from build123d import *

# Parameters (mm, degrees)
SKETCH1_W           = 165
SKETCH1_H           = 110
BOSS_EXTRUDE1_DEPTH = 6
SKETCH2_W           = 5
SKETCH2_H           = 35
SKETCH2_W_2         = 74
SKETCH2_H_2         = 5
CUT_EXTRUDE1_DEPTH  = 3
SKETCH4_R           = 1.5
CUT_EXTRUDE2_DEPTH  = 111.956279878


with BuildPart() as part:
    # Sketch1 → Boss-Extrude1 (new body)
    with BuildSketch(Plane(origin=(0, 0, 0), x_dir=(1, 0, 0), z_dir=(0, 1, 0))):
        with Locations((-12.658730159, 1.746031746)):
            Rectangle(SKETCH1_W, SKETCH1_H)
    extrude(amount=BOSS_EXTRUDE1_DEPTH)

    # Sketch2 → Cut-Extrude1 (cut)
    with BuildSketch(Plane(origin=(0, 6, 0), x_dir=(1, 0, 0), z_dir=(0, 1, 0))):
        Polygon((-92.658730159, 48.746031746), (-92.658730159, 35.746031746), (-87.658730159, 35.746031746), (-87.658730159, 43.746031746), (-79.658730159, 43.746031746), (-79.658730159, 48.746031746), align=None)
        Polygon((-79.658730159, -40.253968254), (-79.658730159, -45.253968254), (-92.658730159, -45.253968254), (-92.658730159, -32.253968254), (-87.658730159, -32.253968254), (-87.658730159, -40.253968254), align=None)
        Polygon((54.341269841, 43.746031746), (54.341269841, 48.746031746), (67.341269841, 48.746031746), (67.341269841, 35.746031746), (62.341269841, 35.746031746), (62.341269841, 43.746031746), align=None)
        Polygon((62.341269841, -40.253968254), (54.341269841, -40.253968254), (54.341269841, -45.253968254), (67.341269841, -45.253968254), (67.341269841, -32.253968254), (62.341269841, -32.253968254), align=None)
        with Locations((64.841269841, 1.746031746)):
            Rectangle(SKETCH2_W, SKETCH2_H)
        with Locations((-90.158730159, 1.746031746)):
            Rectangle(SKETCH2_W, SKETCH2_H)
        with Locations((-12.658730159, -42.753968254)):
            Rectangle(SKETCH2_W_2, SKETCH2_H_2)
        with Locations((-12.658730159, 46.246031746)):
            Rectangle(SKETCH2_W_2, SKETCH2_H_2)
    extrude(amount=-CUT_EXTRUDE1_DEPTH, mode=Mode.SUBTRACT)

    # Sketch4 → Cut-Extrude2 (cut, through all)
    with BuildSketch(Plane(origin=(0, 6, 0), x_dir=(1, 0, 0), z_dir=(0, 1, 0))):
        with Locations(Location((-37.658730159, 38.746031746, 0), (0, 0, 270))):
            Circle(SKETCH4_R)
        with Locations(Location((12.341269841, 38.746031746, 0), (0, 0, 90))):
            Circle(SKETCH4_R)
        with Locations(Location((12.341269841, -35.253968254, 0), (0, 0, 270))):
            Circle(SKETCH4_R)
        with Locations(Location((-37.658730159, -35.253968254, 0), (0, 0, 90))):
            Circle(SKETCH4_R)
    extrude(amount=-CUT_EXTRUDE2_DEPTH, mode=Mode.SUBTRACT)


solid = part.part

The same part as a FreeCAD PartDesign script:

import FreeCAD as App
import Part
import Sketcher
from FreeCAD import Vector
Q = App.Units.Quantity

doc = App.newDocument("Part")
body = doc.addObject("PartDesign::Body", "Body")

# Sketch on XZ plane
sketch1 = doc.addObject("Sketcher::SketchObject", "Sketch")
body.addObject(sketch1)
sketch1.AttachmentSupport = (doc.XZ_Plane, [""])
sketch1.MapMode = "FlatFace"
sketch1.addGeometry(Part.LineSegment(Vector(-95, -57, 0), Vector(-95, 53, 0)), False)
sketch1.addGeometry(Part.LineSegment(Vector(-95, 53, 0), Vector(70, 53, 0)), False)
sketch1.addGeometry(Part.LineSegment(Vector(70, 53, 0), Vector(70, -57, 0)), False)
sketch1.addGeometry(Part.LineSegment(Vector(70, -57, 0), Vector(-95, -57, 0)), False)
sketch1.addConstraint(Sketcher.Constraint("Coincident", 0, 2, 1, 1))
sketch1.addConstraint(Sketcher.Constraint("Coincident", 1, 2, 2, 1))
sketch1.addConstraint(Sketcher.Constraint("Coincident", 2, 2, 3, 1))
sketch1.addConstraint(Sketcher.Constraint("Coincident", 3, 2, 0, 1))
sketch1.addConstraint(Sketcher.Constraint("Vertical", 0))
sketch1.addConstraint(Sketcher.Constraint("Horizontal", 1))
sketch1.addConstraint(Sketcher.Constraint("Vertical", 2))
sketch1.addConstraint(Sketcher.Constraint("Horizontal", 3))
sketch1.addConstraint(Sketcher.Constraint("DistanceX", 1, 1, 1, 2, Q("165 mm")))
sketch1.addConstraint(Sketcher.Constraint("DistanceY", 0, 1, 0, 2, Q("110 mm")))
sketch1.addConstraint(Sketcher.Constraint("DistanceX", 0, 2, -1, 1, Q("95.15873 mm")))
sketch1.addConstraint(Sketcher.Constraint("DistanceY", -1, 1, 0, 2, Q("53.253968 mm")))
pad1 = doc.addObject("PartDesign::Pad", "Pad")
body.addObject(pad1)
pad1.Profile = sketch1
pad1.Length = 6
pad1.Reversed = True

# Sketch on XZ plane
sketch2 = doc.addObject("Sketcher::SketchObject", "Sketch001")
body.addObject(sketch2)
sketch2.AttachmentSupport = (doc.XZ_Plane, [""])
sketch2.MapMode = "FlatFace"
sketch2.AttachmentOffset = App.Placement(Vector(0, 0, -6), App.Rotation())
sketch2.addGeometry(Part.LineSegment(Vector(-93, -49, 0), Vector(-93, -36, 0)), False)
sketch2.addGeometry(Part.LineSegment(Vector(-93, -36, 0), Vector(-88, -36, 0)), False)
sketch2.addGeometry(Part.LineSegment(Vector(-88, -36, 0), Vector(-88, -44, 0)), False)
sketch2.addGeometry(Part.LineSegment(Vector(-88, -44, 0), Vector(-80, -44, 0)), False)
sketch2.addGeometry(Part.LineSegment(Vector(-80, -44, 0), Vector(-80, -49, 0)), False)
sketch2.addGeometry(Part.LineSegment(Vector(-80, -49, 0), Vector(-93, -49, 0)), False)
sketch2.addGeometry(Part.LineSegment(Vector(-80, 45, 0), Vector(-80, 40, 0)), False)
sketch2.addGeometry(Part.LineSegment(Vector(-80, 40, 0), Vector(-88, 40, 0)), False)
sketch2.addGeometry(Part.LineSegment(Vector(-88, 40, 0), Vector(-88, 32, 0)), False)
sketch2.addGeometry(Part.LineSegment(Vector(-88, 32, 0), Vector(-93, 32, 0)), False)
sketch2.addGeometry(Part.LineSegment(Vector(-93, 32, 0), Vector(-93, 45, 0)), False)
sketch2.addGeometry(Part.LineSegment(Vector(-93, 45, 0), Vector(-80, 45, 0)), False)
sketch2.addGeometry(Part.LineSegment(Vector(54, -49, 0), Vector(54, -44, 0)), False)
sketch2.addGeometry(Part.LineSegment(Vector(54, -44, 0), Vector(62, -44, 0)), False)
sketch2.addGeometry(Part.LineSegment(Vector(62, -44, 0), Vector(62, -36, 0)), False)
sketch2.addGeometry(Part.LineSegment(Vector(62, -36, 0), Vector(67, -36, 0)), False)
sketch2.addGeometry(Part.LineSegment(Vector(67, -36, 0), Vector(67, -49, 0)), False)
sketch2.addGeometry(Part.LineSegment(Vector(67, -49, 0), Vector(54, -49, 0)), False)
sketch2.addGeometry(Part.LineSegment(Vector(62, 40, 0), Vector(54, 40, 0)), False)
sketch2.addGeometry(Part.LineSegment(Vector(54, 40, 0), Vector(54, 45, 0)), False)
sketch2.addGeometry(Part.LineSegment(Vector(54, 45, 0), Vector(67, 45, 0)), False)
sketch2.addGeometry(Part.LineSegment(Vector(67, 45, 0), Vector(67, 32, 0)), False)
sketch2.addGeometry(Part.LineSegment(Vector(67, 32, 0), Vector(62, 32, 0)), False)
sketch2.addGeometry(Part.LineSegment(Vector(62, 32, 0), Vector(62, 40, 0)), False)
sketch2.addGeometry(Part.LineSegment(Vector(62, -19, 0), Vector(62, 16, 0)), False)
sketch2.addGeometry(Part.LineSegment(Vector(62, 16, 0), Vector(67, 16, 0)), False)
sketch2.addGeometry(Part.LineSegment(Vector(67, 16, 0), Vector(67, -19, 0)), False)
sketch2.addGeometry(Part.LineSegment(Vector(67, -19, 0), Vector(62, -19, 0)), False)
sketch2.addGeometry(Part.LineSegment(Vector(-93, -19, 0), Vector(-93, 16, 0)), False)
sketch2.addGeometry(Part.LineSegment(Vector(-93, 16, 0), Vector(-88, 16, 0)), False)
sketch2.addGeometry(Part.LineSegment(Vector(-88, 16, 0), Vector(-88, -19, 0)), False)
sketch2.addGeometry(Part.LineSegment(Vector(-88, -19, 0), Vector(-93, -19, 0)), False)
sketch2.addGeometry(Part.LineSegment(Vector(-50, 40, 0), Vector(-50, 45, 0)), False)
sketch2.addGeometry(Part.LineSegment(Vector(-50, 45, 0), Vector(24, 45, 0)), False)
sketch2.addGeometry(Part.LineSegment(Vector(24, 45, 0), Vector(24, 40, 0)), False)
sketch2.addGeometry(Part.LineSegment(Vector(24, 40, 0), Vector(-50, 40, 0)), False)
sketch2.addGeometry(Part.LineSegment(Vector(-50, -49, 0), Vector(-50, -44, 0)), False)
sketch2.addGeometry(Part.LineSegment(Vector(-50, -44, 0), Vector(24, -44, 0)), False)
sketch2.addGeometry(Part.LineSegment(Vector(24, -44, 0), Vector(24, -49, 0)), False)
sketch2.addGeometry(Part.LineSegment(Vector(24, -49, 0), Vector(-50, -49, 0)), False)
sketch2.addConstraint(Sketcher.Constraint("Coincident", 0, 2, 1, 1))
sketch2.addConstraint(Sketcher.Constraint("Coincident", 1, 2, 2, 1))
sketch2.addConstraint(Sketcher.Constraint("Coincident", 2, 2, 3, 1))
sketch2.addConstraint(Sketcher.Constraint("Coincident", 3, 2, 4, 1))
sketch2.addConstraint(Sketcher.Constraint("Coincident", 4, 2, 5, 1))
sketch2.addConstraint(Sketcher.Constraint("Coincident", 5, 2, 0, 1))
sketch2.addConstraint(Sketcher.Constraint("Coincident", 6, 2, 7, 1))
sketch2.addConstraint(Sketcher.Constraint("Coincident", 7, 2, 8, 1))
sketch2.addConstraint(Sketcher.Constraint("Coincident", 8, 2, 9, 1))
sketch2.addConstraint(Sketcher.Constraint("Coincident", 9, 2, 10, 1))
sketch2.addConstraint(Sketcher.Constraint("Coincident", 10, 2, 11, 1))
sketch2.addConstraint(Sketcher.Constraint("Coincident", 11, 2, 6, 1))
sketch2.addConstraint(Sketcher.Constraint("Coincident", 12, 2, 13, 1))
sketch2.addConstraint(Sketcher.Constraint("Coincident", 13, 2, 14, 1))
sketch2.addConstraint(Sketcher.Constraint("Coincident", 14, 2, 15, 1))
sketch2.addConstraint(Sketcher.Constraint("Coincident", 15, 2, 16, 1))
sketch2.addConstraint(Sketcher.Constraint("Coincident", 16, 2, 17, 1))
sketch2.addConstraint(Sketcher.Constraint("Coincident", 17, 2, 12, 1))
sketch2.addConstraint(Sketcher.Constraint("Coincident", 18, 2, 19, 1))
sketch2.addConstraint(Sketcher.Constraint("Coincident", 19, 2, 20, 1))
sketch2.addConstraint(Sketcher.Constraint("Coincident", 20, 2, 21, 1))
sketch2.addConstraint(Sketcher.Constraint("Coincident", 21, 2, 22, 1))
sketch2.addConstraint(Sketcher.Constraint("Coincident", 22, 2, 23, 1))
sketch2.addConstraint(Sketcher.Constraint("Coincident", 23, 2, 18, 1))
sketch2.addConstraint(Sketcher.Constraint("Coincident", 24, 2, 25, 1))
sketch2.addConstraint(Sketcher.Constraint("Coincident", 25, 2, 26, 1))
sketch2.addConstraint(Sketcher.Constraint("Coincident", 26, 2, 27, 1))
sketch2.addConstraint(Sketcher.Constraint("Coincident", 27, 2, 24, 1))
sketch2.addConstraint(Sketcher.Constraint("Coincident", 28, 2, 29, 1))
sketch2.addConstraint(Sketcher.Constraint("Coincident", 29, 2, 30, 1))
sketch2.addConstraint(Sketcher.Constraint("Coincident", 30, 2, 31, 1))
sketch2.addConstraint(Sketcher.Constraint("Coincident", 31, 2, 28, 1))
sketch2.addConstraint(Sketcher.Constraint("Coincident", 32, 2, 33, 1))
sketch2.addConstraint(Sketcher.Constraint("Coincident", 33, 2, 34, 1))
sketch2.addConstraint(Sketcher.Constraint("Coincident", 34, 2, 35, 1))
sketch2.addConstraint(Sketcher.Constraint("Coincident", 35, 2, 32, 1))
sketch2.addConstraint(Sketcher.Constraint("Coincident", 36, 2, 37, 1))
sketch2.addConstraint(Sketcher.Constraint("Coincident", 37, 2, 38, 1))
sketch2.addConstraint(Sketcher.Constraint("Coincident", 38, 2, 39, 1))
sketch2.addConstraint(Sketcher.Constraint("Coincident", 39, 2, 36, 1))
sketch2.addConstraint(Sketcher.Constraint("Vertical", 0))
sketch2.addConstraint(Sketcher.Constraint("Horizontal", 1))
sketch2.addConstraint(Sketcher.Constraint("Vertical", 2))
sketch2.addConstraint(Sketcher.Constraint("Horizontal", 3))
sketch2.addConstraint(Sketcher.Constraint("Vertical", 4))
sketch2.addConstraint(Sketcher.Constraint("Horizontal", 5))
sketch2.addConstraint(Sketcher.Constraint("Vertical", 6))
sketch2.addConstraint(Sketcher.Constraint("Horizontal", 7))
sketch2.addConstraint(Sketcher.Constraint("Vertical", 8))
sketch2.addConstraint(Sketcher.Constraint("Horizontal", 9))
sketch2.addConstraint(Sketcher.Constraint("Vertical", 10))
sketch2.addConstraint(Sketcher.Constraint("Horizontal", 11))
sketch2.addConstraint(Sketcher.Constraint("Vertical", 12))
sketch2.addConstraint(Sketcher.Constraint("Horizontal", 13))
sketch2.addConstraint(Sketcher.Constraint("Vertical", 14))
sketch2.addConstraint(Sketcher.Constraint("Horizontal", 15))
sketch2.addConstraint(Sketcher.Constraint("Vertical", 16))
sketch2.addConstraint(Sketcher.Constraint("Horizontal", 17))
sketch2.addConstraint(Sketcher.Constraint("Horizontal", 18))
sketch2.addConstraint(Sketcher.Constraint("Vertical", 19))
sketch2.addConstraint(Sketcher.Constraint("Horizontal", 20))
sketch2.addConstraint(Sketcher.Constraint("Vertical", 21))
sketch2.addConstraint(Sketcher.Constraint("Horizontal", 22))
sketch2.addConstraint(Sketcher.Constraint("Vertical", 23))
sketch2.addConstraint(Sketcher.Constraint("Vertical", 24))
sketch2.addConstraint(Sketcher.Constraint("Horizontal", 25))
sketch2.addConstraint(Sketcher.Constraint("Vertical", 26))
sketch2.addConstraint(Sketcher.Constraint("Horizontal", 27))
sketch2.addConstraint(Sketcher.Constraint("Vertical", 28))
sketch2.addConstraint(Sketcher.Constraint("Horizontal", 29))
sketch2.addConstraint(Sketcher.Constraint("Vertical", 30))
sketch2.addConstraint(Sketcher.Constraint("Horizontal", 31))
sketch2.addConstraint(Sketcher.Constraint("Vertical", 32))
sketch2.addConstraint(Sketcher.Constraint("Horizontal", 33))
sketch2.addConstraint(Sketcher.Constraint("Vertical", 34))
sketch2.addConstraint(Sketcher.Constraint("Horizontal", 35))
sketch2.addConstraint(Sketcher.Constraint("Vertical", 36))
sketch2.addConstraint(Sketcher.Constraint("Horizontal", 37))
sketch2.addConstraint(Sketcher.Constraint("Vertical", 38))
sketch2.addConstraint(Sketcher.Constraint("Horizontal", 39))
sketch2.addConstraint(Sketcher.Constraint("Horizontal", 3, 2, 12, 2))
sketch2.addConstraint(Sketcher.Constraint("Horizontal", 1, 2, 14, 2))
sketch2.addConstraint(Sketcher.Constraint("Horizontal", 5, 2, 16, 2))
sketch2.addConstraint(Sketcher.Constraint("Horizontal", 7, 2, 18, 2))
sketch2.addConstraint(Sketcher.Constraint("Horizontal", 11, 2, 19, 2))
sketch2.addConstraint(Sketcher.Constraint("Horizontal", 9, 2, 21, 2))
sketch2.addConstraint(Sketcher.Constraint("Horizontal", 25, 2, 28, 2))
sketch2.addConstraint(Sketcher.Constraint("Horizontal", 27, 2, 30, 2))
sketch2.addConstraint(Sketcher.Constraint("Horizontal", 20, 2, 32, 2))
sketch2.addConstraint(Sketcher.Constraint("Horizontal", 23, 2, 34, 2))
sketch2.addConstraint(Sketcher.Constraint("Horizontal", 13, 2, 36, 2))
sketch2.addConstraint(Sketcher.Constraint("Horizontal", 17, 2, 38, 2))
sketch2.addConstraint(Sketcher.Constraint("Vertical", 4, 2, 6, 2))
sketch2.addConstraint(Sketcher.Constraint("Vertical", 2, 2, 7, 2))
sketch2.addConstraint(Sketcher.Constraint("Vertical", 5, 2, 9, 2))
sketch2.addConstraint(Sketcher.Constraint("Vertical", 17, 2, 18, 2))
sketch2.addConstraint(Sketcher.Constraint("Vertical", 16, 2, 20, 2))
sketch2.addConstraint(Sketcher.Constraint("Vertical", 14, 2, 22, 2))
sketch2.addConstraint(Sketcher.Constraint("Vertical", 23, 2, 24, 2))
sketch2.addConstraint(Sketcher.Constraint("Vertical", 21, 2, 25, 2))
sketch2.addConstraint(Sketcher.Constraint("Vertical", 10, 2, 28, 2))
sketch2.addConstraint(Sketcher.Constraint("Vertical", 8, 2, 29, 2))
sketch2.addConstraint(Sketcher.Constraint("Vertical", 35, 2, 36, 2))
sketch2.addConstraint(Sketcher.Constraint("Vertical", 34, 2, 37, 2))
sketch2.addConstraint(Sketcher.Constraint("Equal", 7, 13))
sketch2.addConstraint(Sketcher.Constraint("Equal", 9, 15))
sketch2.addConstraint(Sketcher.Constraint("Equal", 20, 0))
sketch2.addConstraint(Sketcher.Constraint("Equal", 18, 2))
sketch2.addConstraint(Sketcher.Constraint("Equal", 4, 6))
sketch2.addConstraint(Sketcher.Constraint("Equal", 2, 8))
sketch2.addConstraint(Sketcher.Constraint("DistanceX", 1, 1, 1, 2, Q("5 mm")))
sketch2.addConstraint(Sketcher.Constraint("DistanceX", 3, 1, 3, 2, Q("8 mm")))
sketch2.addConstraint(Sketcher.Constraint("DistanceX", 33, 1, 33, 2, Q("74 mm")))
sketch2.addConstraint(Sketcher.Constraint("DistanceY", 24, 1, 24, 2, Q("35 mm")))
sketch2.addConstraint(Sketcher.Constraint("DistanceY", 1, 2, 6, 2, Q("76 mm")))
sketch2.addConstraint(Sketcher.Constraint("DistanceX", 3, 2, 12, 2, Q("134 mm")))
sketch2.addConstraint(Sketcher.Constraint("DistanceX", 11, 2, 32, 2, Q("30 mm")))
sketch2.addConstraint(Sketcher.Constraint("DistanceY", 24, 2, 22, 2, Q("16.5 mm")))
sketch2.addConstraint(Sketcher.Constraint("DistanceX", 0, 2, -1, 1, Q("92.65873 mm")))
sketch2.addConstraint(Sketcher.Constraint("DistanceY", 0, 2, -1, 1, Q("35.746032 mm")))
pocket1 = doc.addObject("PartDesign::Pocket", "Pocket")
body.addObject(pocket1)
pocket1.Profile = sketch2
pocket1.Length = 3
pocket1.Reversed = True

# Sketch on XZ plane
sketch3 = doc.addObject("Sketcher::SketchObject", "Sketch002")
body.addObject(sketch3)
sketch3.AttachmentSupport = (doc.XZ_Plane, [""])
sketch3.MapMode = "FlatFace"
sketch3.AttachmentOffset = App.Placement(Vector(0, 0, -6), App.Rotation())
sketch3.addGeometry(Part.Circle(Vector(-37.7, -38.7, 0), Vector(0, 0, 1), 1.5), False)
sketch3.addGeometry(Part.Circle(Vector(12.3, -38.7, 0), Vector(0, 0, 1), 1.5), False)
sketch3.addGeometry(Part.Circle(Vector(12.3, 35.3, 0), Vector(0, 0, 1), 1.5), False)
sketch3.addGeometry(Part.Circle(Vector(-37.7, 35.3, 0), Vector(0, 0, 1), 1.5), False)
sketch3.addConstraint(Sketcher.Constraint("Equal", 0, 1))
sketch3.addConstraint(Sketcher.Constraint("Equal", 1, 2))
sketch3.addConstraint(Sketcher.Constraint("Equal", 2, 3))
sketch3.addConstraint(Sketcher.Constraint("Horizontal", 0, 3, 1, 3))
sketch3.addConstraint(Sketcher.Constraint("Horizontal", 2, 3, 3, 3))
sketch3.addConstraint(Sketcher.Constraint("Vertical", 1, 3, 2, 3))
sketch3.addConstraint(Sketcher.Constraint("Vertical", 0, 3, 3, 3))
sketch3.addConstraint(Sketcher.Constraint("Diameter", 0, Q("3 mm")))
sketch3.addConstraint(Sketcher.Constraint("DistanceX", 0, 3, 1, 3, Q("50 mm")))
sketch3.addConstraint(Sketcher.Constraint("DistanceY", 1, 3, 2, 3, Q("74 mm")))
sketch3.addConstraint(Sketcher.Constraint("DistanceX", 0, 3, -1, 1, Q("37.65873 mm")))
sketch3.addConstraint(Sketcher.Constraint("DistanceY", 0, 3, -1, 1, Q("38.746032 mm")))
pocket2 = doc.addObject("PartDesign::Pocket", "Pocket001")
body.addObject(pocket2)
pocket2.Profile = sketch3
pocket2.Type = "ThroughAll"
pocket2.Reversed = True

doc.recompute()
